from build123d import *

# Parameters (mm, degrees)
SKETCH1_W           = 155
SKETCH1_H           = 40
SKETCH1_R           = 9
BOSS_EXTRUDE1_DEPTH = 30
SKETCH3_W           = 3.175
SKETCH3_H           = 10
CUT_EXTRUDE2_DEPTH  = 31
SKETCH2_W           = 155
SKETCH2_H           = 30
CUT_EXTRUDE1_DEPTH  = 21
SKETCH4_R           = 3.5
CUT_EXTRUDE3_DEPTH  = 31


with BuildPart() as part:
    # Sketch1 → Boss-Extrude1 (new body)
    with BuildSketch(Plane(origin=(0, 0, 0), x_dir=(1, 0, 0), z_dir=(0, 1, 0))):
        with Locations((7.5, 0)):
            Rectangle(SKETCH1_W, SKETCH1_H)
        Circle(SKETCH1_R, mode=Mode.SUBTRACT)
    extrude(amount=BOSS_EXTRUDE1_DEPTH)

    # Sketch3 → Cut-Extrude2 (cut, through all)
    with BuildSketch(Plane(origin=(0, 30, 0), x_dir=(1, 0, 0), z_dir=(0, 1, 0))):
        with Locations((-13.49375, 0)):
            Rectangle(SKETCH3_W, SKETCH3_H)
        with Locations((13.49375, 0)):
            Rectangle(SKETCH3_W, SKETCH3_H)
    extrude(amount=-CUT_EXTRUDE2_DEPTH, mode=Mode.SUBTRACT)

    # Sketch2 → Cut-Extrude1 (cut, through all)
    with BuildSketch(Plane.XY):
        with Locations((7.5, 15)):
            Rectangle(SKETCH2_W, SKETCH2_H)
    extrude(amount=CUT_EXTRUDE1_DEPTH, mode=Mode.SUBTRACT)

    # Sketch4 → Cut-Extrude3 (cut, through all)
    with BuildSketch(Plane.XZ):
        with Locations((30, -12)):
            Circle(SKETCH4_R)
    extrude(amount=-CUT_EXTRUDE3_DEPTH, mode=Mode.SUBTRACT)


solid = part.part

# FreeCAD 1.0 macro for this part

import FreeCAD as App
import Part
import Sketcher
from FreeCAD import Vector
Q = App.Units.Quantity


def add_polygon(sketch, points):
    """Adds a closed chain of lines whose ends are joined by coincident constraints."""
    first, n = sketch.GeometryCount, len(points)
    for a, b in zip(points, points[1:] + points[:1]):
        sketch.addGeometry(Part.LineSegment(App.Vector(*a, 0), App.Vector(*b, 0)), False)
    for i in range(n):
        sketch.addConstraint(Sketcher.Constraint("Coincident", first + i, 2, first + (i + 1) % n, 1))

doc = App.newDocument("Part")
body = doc.addObject("PartDesign::Body", "Body")

# Sketch on XZ plane
sketch1 = body.newObject("Sketcher::SketchObject", "Sketch")
sketch1.AttachmentSupport = (doc.getObject("XZ_Plane"), [""])
sketch1.MapMode = "FlatFace"
add_polygon(sketch1, [(-70, -20), (-70, 20), (85, 20), (85, -20)])  # lines 0-3
sketch1.addGeometry(Part.Circle(Vector(0, 0, 0), Vector(0, 0, 1), 9), False)  # 4
sketch1.addConstraint([
    Sketcher.Constraint("Vertical", 0),
    Sketcher.Constraint("Horizontal", 1),
    Sketcher.Constraint("Vertical", 2),
    Sketcher.Constraint("Horizontal", 3),
    Sketcher.Constraint("Coincident", 4, 3, -1, 1),
    Sketcher.Constraint("Diameter", 4, Q("18 mm")),
    Sketcher.Constraint("DistanceX", 1, 1, 1, 2, Q("155 mm")),
    Sketcher.Constraint("DistanceY", 0, 1, 0, 2, Q("40 mm")),
    Sketcher.Constraint("DistanceX", 0, 2, -1, 1, Q("70 mm")),
    Sketcher.Constraint("DistanceY", -1, 1, 0, 2, Q("20 mm")),
])
pad1 = body.newObject("PartDesign::Pad", "Pad")
pad1.Profile = sketch1
pad1.Length = 30
pad1.Reversed = True

# Sketch on XZ plane
sketch2 = body.newObject("Sketcher::SketchObject", "Sketch001")
sketch2.AttachmentSupport = (doc.getObject("XZ_Plane"), [""])
sketch2.MapMode = "FlatFace"
sketch2.AttachmentOffset = App.Placement(Vector(0, 0, -30), App.Rotation())
add_polygon(sketch2, [(-15.1, -5), (-15.1, 5), (-11.9, 5), (-11.9, -5)])  # lines 0-3
add_polygon(sketch2, [(11.9, -5), (11.9, 5), (15.1, 5), (15.1, -5)])  # lines 4-7
sketch2.addConstraint([
    Sketcher.Constraint("Vertical", 0),
    Sketcher.Constraint("Horizontal", 1),
    Sketcher.Constraint("Vertical", 2),
    Sketcher.Constraint("Horizontal", 3),
    Sketcher.Constraint("Vertical", 4),
    Sketcher.Constraint("Horizontal", 5),
    Sketcher.Constraint("Vertical", 6),
    Sketcher.Constraint("Horizontal", 7),
    Sketcher.Constraint("Symmetric", 2, 2, 4, 2, -1, 1),
    Sketcher.Constraint("Symmetric", 0, 2, 6, 2, -1, 1),
    Sketcher.Constraint("Horizontal", 1, 2, 4, 2),
    Sketcher.Constraint("DistanceY", 0, 1, 0, 2, Q("10 mm")),
    Sketcher.Constraint("DistanceX", 1, 1, 1, 2, Q("3.175 mm")),
    Sketcher.Constraint("DistanceX", 1, 2, 4, 2, Q("23.8125 mm")),
])
pocket1 = body.newObject("PartDesign::Pocket", "Pocket")
pocket1.Profile = sketch2
pocket1.Type = "ThroughAll"
pocket1.Reversed = True

# Sketch on XY plane
sketch3 = body.newObject("Sketcher::SketchObject", "Sketch002")
sketch3.AttachmentSupport = (doc.getObject("XY_Plane"), [""])
sketch3.MapMode = "FlatFace"
add_polygon(sketch3, [(-70, 30), (-70, 0), (85, 0), (85, 30)])  # lines 0-3
sketch3.addConstraint([
    Sketcher.Constraint("Vertical", 0),
    Sketcher.Constraint("Horizontal", 1),
    Sketcher.Constraint("Vertical", 2),
    Sketcher.Constraint("Horizontal", 3),
    Sketcher.Constraint("PointOnObject", 0, 2, -1),
    Sketcher.Constraint("DistanceX", 1, 1, 1, 2, Q("155 mm")),
    Sketcher.Constraint("DistanceY", 0, 2, 0, 1, Q("30 mm")),
    Sketcher.Constraint("DistanceX", 0, 2, -1, 1, Q("70 mm")),
])
pocket2 = body.newObject("PartDesign::Pocket", "Pocket001")
pocket2.Profile = sketch3
pocket2.Type = "ThroughAll"
pocket2.Reversed = True

# Sketch on XZ plane
sketch4 = body.newObject("Sketcher::SketchObject", "Sketch003")
sketch4.AttachmentSupport = (doc.getObject("XZ_Plane"), [""])
sketch4.MapMode = "FlatFace"
sketch4.addGeometry(Part.Circle(Vector(30, -12, 0), Vector(0, 0, 1), 3.5), False)
sketch4.addConstraint([
    Sketcher.Constraint("Diameter", 0, Q("7 mm")),
    Sketcher.Constraint("DistanceX", -1, 1, 0, 3, Q("30 mm")),
    Sketcher.Constraint("DistanceY", 0, 3, -1, 1, Q("12 mm")),
])
pocket3 = body.newObject("PartDesign::Pocket", "Pocket002")
pocket3.Profile = sketch4
pocket3.Type = "ThroughAll"

doc.recompute()
